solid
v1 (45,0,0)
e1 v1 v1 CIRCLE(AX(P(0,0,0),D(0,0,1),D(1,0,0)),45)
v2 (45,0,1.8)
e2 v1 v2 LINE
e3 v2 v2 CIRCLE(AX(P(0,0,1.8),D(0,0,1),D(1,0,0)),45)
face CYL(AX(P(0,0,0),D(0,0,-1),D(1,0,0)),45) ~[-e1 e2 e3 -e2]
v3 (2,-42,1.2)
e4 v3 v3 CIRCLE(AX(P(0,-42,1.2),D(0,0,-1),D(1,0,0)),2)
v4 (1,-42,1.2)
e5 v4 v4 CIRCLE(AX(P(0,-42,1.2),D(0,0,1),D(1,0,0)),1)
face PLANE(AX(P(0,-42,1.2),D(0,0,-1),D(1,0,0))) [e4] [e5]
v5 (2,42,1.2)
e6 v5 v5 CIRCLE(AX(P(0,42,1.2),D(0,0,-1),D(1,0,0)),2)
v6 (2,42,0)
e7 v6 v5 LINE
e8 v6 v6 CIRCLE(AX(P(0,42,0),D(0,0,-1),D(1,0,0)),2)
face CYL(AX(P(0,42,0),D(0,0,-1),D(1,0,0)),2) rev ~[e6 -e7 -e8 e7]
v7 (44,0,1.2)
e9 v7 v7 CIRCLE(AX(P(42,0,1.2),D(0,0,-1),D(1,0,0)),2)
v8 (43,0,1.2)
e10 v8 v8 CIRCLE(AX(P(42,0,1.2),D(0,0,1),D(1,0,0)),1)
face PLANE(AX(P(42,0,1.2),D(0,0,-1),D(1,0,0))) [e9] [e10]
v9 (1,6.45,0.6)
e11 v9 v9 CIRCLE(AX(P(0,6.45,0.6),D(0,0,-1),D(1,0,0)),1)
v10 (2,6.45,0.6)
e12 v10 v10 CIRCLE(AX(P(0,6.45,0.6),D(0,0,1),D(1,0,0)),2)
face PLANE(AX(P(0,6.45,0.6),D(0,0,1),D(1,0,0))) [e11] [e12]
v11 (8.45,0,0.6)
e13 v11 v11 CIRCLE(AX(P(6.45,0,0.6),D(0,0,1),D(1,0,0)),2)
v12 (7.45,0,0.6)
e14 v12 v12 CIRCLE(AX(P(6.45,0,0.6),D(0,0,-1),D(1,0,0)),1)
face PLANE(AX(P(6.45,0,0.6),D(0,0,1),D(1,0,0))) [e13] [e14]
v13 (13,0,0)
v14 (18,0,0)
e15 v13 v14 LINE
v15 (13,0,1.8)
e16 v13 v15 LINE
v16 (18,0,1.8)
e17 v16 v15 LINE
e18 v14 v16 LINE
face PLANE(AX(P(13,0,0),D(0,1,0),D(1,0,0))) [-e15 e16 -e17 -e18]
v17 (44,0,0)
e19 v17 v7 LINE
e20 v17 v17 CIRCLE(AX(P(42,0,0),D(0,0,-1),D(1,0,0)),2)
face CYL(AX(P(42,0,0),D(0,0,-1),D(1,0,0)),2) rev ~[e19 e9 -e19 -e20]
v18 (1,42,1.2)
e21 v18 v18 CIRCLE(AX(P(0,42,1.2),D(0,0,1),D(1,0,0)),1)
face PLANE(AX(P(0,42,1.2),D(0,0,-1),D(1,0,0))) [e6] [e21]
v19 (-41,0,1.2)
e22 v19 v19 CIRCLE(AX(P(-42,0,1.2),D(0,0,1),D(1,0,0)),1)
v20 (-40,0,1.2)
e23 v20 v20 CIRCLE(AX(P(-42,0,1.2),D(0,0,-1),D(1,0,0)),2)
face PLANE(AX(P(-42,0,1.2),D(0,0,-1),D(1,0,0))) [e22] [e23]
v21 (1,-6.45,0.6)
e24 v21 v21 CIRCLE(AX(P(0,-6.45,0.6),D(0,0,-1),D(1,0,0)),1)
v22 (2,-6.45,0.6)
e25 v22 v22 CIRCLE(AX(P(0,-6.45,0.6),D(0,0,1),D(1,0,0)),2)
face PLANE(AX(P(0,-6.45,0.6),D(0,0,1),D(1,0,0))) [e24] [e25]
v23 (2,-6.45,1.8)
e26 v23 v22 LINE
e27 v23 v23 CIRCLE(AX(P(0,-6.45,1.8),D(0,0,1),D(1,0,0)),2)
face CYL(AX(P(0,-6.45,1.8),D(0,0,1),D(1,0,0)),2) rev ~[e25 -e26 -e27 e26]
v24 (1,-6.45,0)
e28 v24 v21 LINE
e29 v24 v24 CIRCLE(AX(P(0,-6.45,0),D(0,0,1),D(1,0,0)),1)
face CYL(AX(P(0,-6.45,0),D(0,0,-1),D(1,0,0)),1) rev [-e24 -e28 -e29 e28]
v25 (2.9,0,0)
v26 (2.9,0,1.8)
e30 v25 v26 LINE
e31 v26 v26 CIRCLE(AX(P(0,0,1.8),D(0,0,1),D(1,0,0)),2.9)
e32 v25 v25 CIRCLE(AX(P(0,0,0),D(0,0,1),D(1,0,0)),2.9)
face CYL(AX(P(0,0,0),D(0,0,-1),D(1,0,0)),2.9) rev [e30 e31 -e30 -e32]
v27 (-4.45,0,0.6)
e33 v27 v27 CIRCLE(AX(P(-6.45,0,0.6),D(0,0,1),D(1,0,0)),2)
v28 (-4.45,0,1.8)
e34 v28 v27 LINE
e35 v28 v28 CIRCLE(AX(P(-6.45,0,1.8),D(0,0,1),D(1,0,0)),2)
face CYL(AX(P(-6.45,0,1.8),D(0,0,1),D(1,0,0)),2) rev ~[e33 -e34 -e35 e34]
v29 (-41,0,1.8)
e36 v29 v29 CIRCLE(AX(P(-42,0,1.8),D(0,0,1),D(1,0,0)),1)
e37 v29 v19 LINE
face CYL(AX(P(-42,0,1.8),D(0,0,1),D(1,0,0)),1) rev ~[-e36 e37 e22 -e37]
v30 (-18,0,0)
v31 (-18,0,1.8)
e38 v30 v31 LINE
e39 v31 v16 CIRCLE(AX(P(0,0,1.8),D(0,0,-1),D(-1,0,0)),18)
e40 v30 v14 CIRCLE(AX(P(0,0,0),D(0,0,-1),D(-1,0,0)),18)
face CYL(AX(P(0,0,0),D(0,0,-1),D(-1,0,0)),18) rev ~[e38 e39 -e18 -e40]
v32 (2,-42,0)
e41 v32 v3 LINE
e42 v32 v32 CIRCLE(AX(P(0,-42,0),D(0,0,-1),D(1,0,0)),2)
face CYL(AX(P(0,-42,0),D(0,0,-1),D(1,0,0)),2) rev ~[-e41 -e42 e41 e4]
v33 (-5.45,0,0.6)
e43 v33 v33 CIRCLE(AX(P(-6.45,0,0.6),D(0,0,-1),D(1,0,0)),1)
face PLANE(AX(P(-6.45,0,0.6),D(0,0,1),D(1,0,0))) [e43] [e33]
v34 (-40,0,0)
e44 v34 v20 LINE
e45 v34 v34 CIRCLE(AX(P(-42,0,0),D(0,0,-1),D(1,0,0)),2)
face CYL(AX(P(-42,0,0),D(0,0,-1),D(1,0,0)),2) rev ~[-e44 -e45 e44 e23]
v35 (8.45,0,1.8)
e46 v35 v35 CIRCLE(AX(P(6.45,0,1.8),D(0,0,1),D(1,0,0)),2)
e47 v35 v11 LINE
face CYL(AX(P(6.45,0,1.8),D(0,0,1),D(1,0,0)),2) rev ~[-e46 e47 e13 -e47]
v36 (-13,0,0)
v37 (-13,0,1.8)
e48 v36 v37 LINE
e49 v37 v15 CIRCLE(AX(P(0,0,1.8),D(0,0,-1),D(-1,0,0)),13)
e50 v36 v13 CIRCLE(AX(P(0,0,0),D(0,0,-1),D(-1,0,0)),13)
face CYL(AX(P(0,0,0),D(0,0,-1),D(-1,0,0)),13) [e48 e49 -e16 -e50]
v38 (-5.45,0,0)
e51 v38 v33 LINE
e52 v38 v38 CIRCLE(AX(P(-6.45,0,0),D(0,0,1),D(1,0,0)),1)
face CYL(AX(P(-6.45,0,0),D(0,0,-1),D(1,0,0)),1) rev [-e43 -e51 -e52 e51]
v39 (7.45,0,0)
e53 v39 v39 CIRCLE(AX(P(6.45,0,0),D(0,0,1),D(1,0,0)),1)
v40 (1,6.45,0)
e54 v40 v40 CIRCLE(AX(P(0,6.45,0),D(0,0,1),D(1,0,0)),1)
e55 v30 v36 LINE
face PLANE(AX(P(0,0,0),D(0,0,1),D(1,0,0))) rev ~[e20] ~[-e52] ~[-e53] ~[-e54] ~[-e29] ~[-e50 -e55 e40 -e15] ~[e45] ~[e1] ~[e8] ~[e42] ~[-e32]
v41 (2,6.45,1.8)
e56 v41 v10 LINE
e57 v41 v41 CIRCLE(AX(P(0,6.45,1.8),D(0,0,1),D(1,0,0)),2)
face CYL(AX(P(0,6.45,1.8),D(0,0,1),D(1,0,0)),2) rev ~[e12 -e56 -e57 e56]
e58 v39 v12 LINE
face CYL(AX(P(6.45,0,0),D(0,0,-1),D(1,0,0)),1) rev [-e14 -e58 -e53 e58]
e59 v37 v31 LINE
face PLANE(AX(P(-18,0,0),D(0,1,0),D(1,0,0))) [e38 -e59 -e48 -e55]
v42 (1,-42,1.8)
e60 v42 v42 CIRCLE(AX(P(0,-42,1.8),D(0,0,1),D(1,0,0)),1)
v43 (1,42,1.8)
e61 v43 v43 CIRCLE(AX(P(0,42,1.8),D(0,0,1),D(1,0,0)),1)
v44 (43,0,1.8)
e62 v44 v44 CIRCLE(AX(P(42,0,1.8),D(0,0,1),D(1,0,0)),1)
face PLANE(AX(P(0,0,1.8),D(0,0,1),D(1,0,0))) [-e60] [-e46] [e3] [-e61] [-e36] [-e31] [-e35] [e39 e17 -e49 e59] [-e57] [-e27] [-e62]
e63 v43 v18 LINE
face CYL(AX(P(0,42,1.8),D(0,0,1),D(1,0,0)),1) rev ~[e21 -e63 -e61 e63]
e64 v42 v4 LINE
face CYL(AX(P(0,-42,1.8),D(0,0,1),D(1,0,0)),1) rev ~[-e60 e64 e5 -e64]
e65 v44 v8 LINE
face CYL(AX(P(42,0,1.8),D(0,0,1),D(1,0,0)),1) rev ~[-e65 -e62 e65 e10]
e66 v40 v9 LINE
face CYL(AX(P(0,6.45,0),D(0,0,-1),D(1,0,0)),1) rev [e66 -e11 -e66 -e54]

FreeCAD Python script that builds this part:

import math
import FreeCAD as App
import Part
import Sketcher

doc = App.newDocument("Part")
body = doc.addObject("PartDesign::Body", "Body")

# Sketch on XY plane
sketch1 = body.newObject("Sketcher::SketchObject", "Sketch")
sketch1.AttachmentSupport = (doc.getObject("XY_Plane"), [""])
sketch1.MapMode = "FlatFace"
sketch1.addGeometry([
    Part.Circle(App.Vector(0, 0, 0), App.Vector(0, 0, 1), 45),  # 0
    Part.Circle(App.Vector(0, -6.5, 0), App.Vector(0, 0, 1), 1),  # 1
    Part.Circle(App.Vector(-6.5, 0, 0), App.Vector(0, 0, 1), 1),  # 2
    Part.Circle(App.Vector(0, 0, 0), App.Vector(0, 0, 1), 2.9),  # 3
    Part.Circle(App.Vector(6.5, 0, 0), App.Vector(0, 0, 1), 1),  # 4
    Part.Circle(App.Vector(0, 6.5, 0), App.Vector(0, 0, 1), 1),  # 5
], False)
sketch1.addConstraint([
    Sketcher.Constraint("Coincident", 0, 3, -1, 1),
    Sketcher.Constraint("Coincident", 3, 3, -1, 1),
    Sketcher.Constraint("Equal", 1, 2),
    Sketcher.Constraint("Equal", 2, 4),
    Sketcher.Constraint("Equal", 4, 5),
    Sketcher.Constraint("Symmetric", 2, 3, 4, 3, -1, 1),
    Sketcher.Constraint("Symmetric", 1, 3, 5, 3, -1, 1),
    Sketcher.Constraint("PointOnObject", 1, 3, -2),
    Sketcher.Constraint("PointOnObject", 2, 3, -1),
    Sketcher.Constraint("Diameter", 0, 90.0),
    Sketcher.Constraint("Diameter", 1, 2.0),
    Sketcher.Constraint("Diameter", 3, 5.8),
    Sketcher.Constraint("DistanceX", 2, 3, 4, 3, 12.9),
    Sketcher.Constraint("DistanceY", 1, 3, 5, 3, 12.9),
])
pad1 = body.newObject("PartDesign::Pad", "Pad")
pad1.Profile = sketch1
pad1.Length = 1.8

# Sketch on XY plane
sketch2 = body.newObject("Sketcher::SketchObject", "Sketch001")
sketch2.AttachmentSupport = (doc.getObject("XY_Plane"), [""])
sketch2.MapMode = "FlatFace"
sketch2.AttachmentOffset = App.Placement(App.Vector(0, 0, 1.8), App.Rotation())
sketch2.addGeometry([
    Part.Circle(App.Vector(-6.5, 0, 0), App.Vector(0, 0, 1), 2),
    Part.Circle(App.Vector(0, 6.5, 0), App.Vector(0, 0, 1), 2),
    Part.Circle(App.Vector(6.5, 0, 0), App.Vector(0, 0, 1), 2),
    Part.Circle(App.Vector(0, -6.5, 0), App.Vector(0, 0, 1), 2),
], False)
sketch2.addConstraint([
    Sketcher.Constraint("Equal", 0, 1),
    Sketcher.Constraint("Equal", 1, 2),
    Sketcher.Constraint("Equal", 2, 3),
    Sketcher.Constraint("Symmetric", 0, 3, 2, 3, -1, 1),
    Sketcher.Constraint("Symmetric", 1, 3, 3, 3, -1, 1),
    Sketcher.Constraint("PointOnObject", 0, 3, -1),
    Sketcher.Constraint("PointOnObject", 1, 3, -2),
    Sketcher.Constraint("Diameter", 0, 4.0),
    Sketcher.Constraint("DistanceX", 0, 3, 2, 3, 12.9),
    Sketcher.Constraint("DistanceY", 3, 3, 1, 3, 12.9),
])
pocket1 = body.newObject("PartDesign::Pocket", "Pocket")
pocket1.Profile = sketch2
pocket1.Length = 1.2

# Sketch on XY plane
sketch3 = body.newObject("Sketcher::SketchObject", "Sketch002")
sketch3.AttachmentSupport = (doc.getObject("XY_Plane"), [""])
sketch3.MapMode = "FlatFace"
sketch3.AttachmentOffset = App.Placement(App.Vector(0, 0, 1.8), App.Rotation())
sketch3.addGeometry([
    Part.Circle(App.Vector(-42, 0, 0), App.Vector(0, 0, 1), 1),
    Part.Circle(App.Vector(42, 0, 0), App.Vector(0, 0, 1), 1),
    Part.Circle(App.Vector(0, 42, 0), App.Vector(0, 0, 1), 1),
    Part.Circle(App.Vector(0, -42, 0), App.Vector(0, 0, 1), 1),
], False)
sketch3.addConstraint([
    Sketcher.Constraint("Equal", 0, 1),
    Sketcher.Constraint("Equal", 1, 2),
    Sketcher.Constraint("Equal", 2, 3),
    Sketcher.Constraint("Symmetric", 0, 3, 1, 3, -1, 1),
    Sketcher.Constraint("Symmetric", 2, 3, 3, 3, -1, 1),
    Sketcher.Constraint("PointOnObject", 0, 3, -1),
    Sketcher.Constraint("PointOnObject", 2, 3, -2),
    Sketcher.Constraint("Diameter", 0, 2.0),
    Sketcher.Constraint("DistanceX", 0, 3, -1, 1, 42.0),
    Sketcher.Constraint("DistanceY", -1, 1, 2, 3, 42.0),
])
pocket2 = body.newObject("PartDesign::Pocket", "Pocket001")
pocket2.Profile = sketch3
pocket2.Type = "ThroughAll"

# Sketch on XY plane
sketch4 = body.newObject("Sketcher::SketchObject", "Sketch003")
sketch4.AttachmentSupport = (doc.getObject("XY_Plane"), [""])
sketch4.MapMode = "FlatFace"
sketch4.addGeometry([
    Part.Circle(App.Vector(-42, 0, 0), App.Vector(0, 0, 1), 2),
    Part.Circle(App.Vector(0, -42, 0), App.Vector(0, 0, 1), 2),
    Part.Circle(App.Vector(42, 0, 0), App.Vector(0, 0, 1), 2),
    Part.Circle(App.Vector(0, 42, 0), App.Vector(0, 0, 1), 2),
], False)
sketch4.addConstraint([
    Sketcher.Constraint("Equal", 0, 1),
    Sketcher.Constraint("Equal", 1, 2),
    Sketcher.Constraint("Equal", 2, 3),
    Sketcher.Constraint("Symmetric", 0, 3, 2, 3, -1, 1),
    Sketcher.Constraint("Symmetric", 1, 3, 3, 3, -1, 1),
    Sketcher.Constraint("PointOnObject", 0, 3, -1),
    Sketcher.Constraint("PointOnObject", 1, 3, -2),
    Sketcher.Constraint("Diameter", 0, 4.0),
    Sketcher.Constraint("DistanceX", 0, 3, -1, 1, 42.0),
    Sketcher.Constraint("DistanceY", 1, 3, -1, 1, 42.0),
])
pocket3 = body.newObject("PartDesign::Pocket", "Pocket002")
pocket3.Profile = sketch4
pocket3.Length = 1.2
pocket3.Reversed = True

# Sketch on XY plane
sketch5 = body.newObject("Sketcher::SketchObject", "Sketch004")
sketch5.AttachmentSupport = (doc.getObject("XY_Plane"), [""])
sketch5.MapMode = "FlatFace"
sketch5.addGeometry([
    Part.ArcOfCircle(Part.Circle(App.Vector(0, 0, 0), App.Vector(0, 0, 1), 13), math.radians(0), math.radians(180)),
    Part.LineSegment(App.Vector(-13, 0, 0), App.Vector(-18, 0, 0)),
    Part.ArcOfCircle(Part.Circle(App.Vector(0, 0, 0), App.Vector(0, 0, 1), 18), math.radians(0), math.radians(180)),
    Part.LineSegment(App.Vector(18, 0, 0), App.Vector(13, 0, 0)),
], False)
sketch5.addConstraint([
    Sketcher.Constraint("Coincident", 0, 2, 1, 1),
    Sketcher.Constraint("Coincident", 1, 2, 2, 2),
    Sketcher.Constraint("Coincident", 2, 1, 3, 1),
    Sketcher.Constraint("Coincident", 3, 2, 0, 1),
    Sketcher.Constraint("Horizontal", 1),
    Sketcher.Constraint("Horizontal", 3),
    Sketcher.Constraint("Coincident", 0, 3, -1, 1),
    Sketcher.Constraint("Coincident", 2, 3, -1, 1),
    Sketcher.Constraint("PointOnObject", 0, 2, -1),
    Sketcher.Constraint("PointOnObject", 2, 1, -1),
    Sketcher.Constraint("Radius", 0, 13.0),
    Sketcher.Constraint("Radius", 2, 18.0),
])
pocket4 = body.newObject("PartDesign::Pocket", "Pocket003")
pocket4.Profile = sketch5
pocket4.Type = "ThroughAll"
pocket4.Reversed = True

doc.recompute()
